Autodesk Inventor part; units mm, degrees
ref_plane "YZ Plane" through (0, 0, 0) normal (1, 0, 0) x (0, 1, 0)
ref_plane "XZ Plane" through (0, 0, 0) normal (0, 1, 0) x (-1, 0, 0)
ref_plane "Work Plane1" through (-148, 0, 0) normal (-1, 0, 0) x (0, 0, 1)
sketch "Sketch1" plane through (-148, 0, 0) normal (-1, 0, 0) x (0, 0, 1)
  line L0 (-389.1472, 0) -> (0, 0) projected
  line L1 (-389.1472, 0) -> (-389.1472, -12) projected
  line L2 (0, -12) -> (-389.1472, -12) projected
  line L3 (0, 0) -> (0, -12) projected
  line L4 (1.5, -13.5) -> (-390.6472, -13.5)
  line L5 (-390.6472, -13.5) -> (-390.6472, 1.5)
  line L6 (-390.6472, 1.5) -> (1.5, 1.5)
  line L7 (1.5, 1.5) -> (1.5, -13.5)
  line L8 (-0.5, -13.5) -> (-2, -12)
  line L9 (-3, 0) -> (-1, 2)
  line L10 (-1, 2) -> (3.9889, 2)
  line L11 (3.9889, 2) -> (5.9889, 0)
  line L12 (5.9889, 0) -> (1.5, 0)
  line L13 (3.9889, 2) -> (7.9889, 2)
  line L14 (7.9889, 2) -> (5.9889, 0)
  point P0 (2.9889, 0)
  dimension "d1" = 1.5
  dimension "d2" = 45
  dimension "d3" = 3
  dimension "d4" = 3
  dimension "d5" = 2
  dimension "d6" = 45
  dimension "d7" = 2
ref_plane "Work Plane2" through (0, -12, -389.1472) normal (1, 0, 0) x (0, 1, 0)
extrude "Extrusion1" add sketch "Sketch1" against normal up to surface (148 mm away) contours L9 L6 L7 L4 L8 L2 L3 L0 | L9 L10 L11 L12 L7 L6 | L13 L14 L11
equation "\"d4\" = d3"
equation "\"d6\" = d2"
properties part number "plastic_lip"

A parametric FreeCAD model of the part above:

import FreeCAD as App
import Part
import Sketcher

V = App.Vector
Q = App.Units.Quantity


def add_polygon(sketch, points):
    """Adds a closed chain of lines whose ends are joined by coincident constraints."""
    first, n = sketch.GeometryCount, len(points)
    for a, b in zip(points, points[1:] + points[:1]):
        sketch.addGeometry(Part.LineSegment(App.Vector(*a, 0), App.Vector(*b, 0)), False)
    for i in range(n):
        sketch.addConstraint(Sketcher.Constraint("Coincident", first + i, 2, first + (i + 1) % n, 1))

doc = App.newDocument("Part")
body = doc.addObject("PartDesign::Body", "Body")

# Sketch on YZ plane
sketch1 = doc.addObject("Sketcher::SketchObject", "Sketch")
body.addObject(sketch1)
sketch1.AttachmentSupport = (doc.YZ_Plane, [""])
sketch1.MapMode = "FlatFace"
sketch1.AttachmentOffset = App.Placement(V(0, 0, -148), App.Rotation())
add_polygon(sketch1, [(0, -3), (0, 0), (-12, 0), (-12, -2), (-13.5, -0.5), (-13.5, 1.5), (0, 1.5), (0, 6), (2, 8), (2, -1)])  # lines 0-9
sketch1.addConstraint([
    Sketcher.Constraint("Vertical", 0),
    Sketcher.Constraint("Horizontal", 1),
    Sketcher.Constraint("Vertical", 2),
    Sketcher.Constraint("Vertical", 4),
    Sketcher.Constraint("Horizontal", 5),
    Sketcher.Constraint("Vertical", 6),
    Sketcher.Constraint("Vertical", 8),
    Sketcher.Constraint("Coincident", 0, 2, -1, 1),
    Sketcher.Constraint("PointOnObject", 5, 2, -2),
    Sketcher.Constraint("Perpendicular", 3, 7),
    Sketcher.Constraint("Parallel", 7, 9),
    Sketcher.Constraint("Equal", 2, 4),
    Sketcher.Constraint("DistanceY", 0, 1, 0, 2, 3.0),
    Sketcher.Constraint("DistanceY", 2, 2, 2, 1, 2.0),
    Sketcher.Constraint("Angle", 7, Q("45 deg")),
    Sketcher.Constraint("DistanceX", -1, 1, 7, 2, 2.0),
    Sketcher.Constraint("DistanceY", -1, 1, 4, 2, 1.5),
    Sketcher.Constraint("DistanceX", 1, 2, 1, 1, 12.0),
    Sketcher.Constraint("DistanceY", 6, 1, 6, 2, 4.489),
])
pad1 = doc.addObject("PartDesign::Pad", "Pad")
body.addObject(pad1)
pad1.Profile = sketch1
pad1.Length = 148

doc.recompute()
